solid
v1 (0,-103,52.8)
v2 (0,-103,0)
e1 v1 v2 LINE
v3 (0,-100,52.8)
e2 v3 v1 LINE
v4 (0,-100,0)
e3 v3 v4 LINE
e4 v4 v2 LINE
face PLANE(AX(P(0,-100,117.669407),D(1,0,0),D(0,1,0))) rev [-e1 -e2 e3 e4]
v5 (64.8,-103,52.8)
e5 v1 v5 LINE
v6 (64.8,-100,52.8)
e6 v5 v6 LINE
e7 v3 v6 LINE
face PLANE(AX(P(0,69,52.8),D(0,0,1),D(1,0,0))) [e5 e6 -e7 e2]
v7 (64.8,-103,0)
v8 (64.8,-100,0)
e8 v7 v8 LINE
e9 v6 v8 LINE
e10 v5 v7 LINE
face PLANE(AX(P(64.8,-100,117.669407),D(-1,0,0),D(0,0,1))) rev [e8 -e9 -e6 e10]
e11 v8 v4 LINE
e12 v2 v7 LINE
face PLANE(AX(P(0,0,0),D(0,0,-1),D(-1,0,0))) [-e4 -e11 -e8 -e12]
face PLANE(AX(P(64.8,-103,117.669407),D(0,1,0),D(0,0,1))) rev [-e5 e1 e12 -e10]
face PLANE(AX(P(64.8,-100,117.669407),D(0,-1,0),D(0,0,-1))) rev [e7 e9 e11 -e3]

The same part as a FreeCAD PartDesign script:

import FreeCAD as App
import Part
import Sketcher
Q = App.Units.Quantity


def add_polygon(sketch, points):
    """Adds a closed chain of lines whose ends are joined by coincident constraints."""
    first, n = sketch.GeometryCount, len(points)
    for a, b in zip(points, points[1:] + points[:1]):
        sketch.addGeometry(Part.LineSegment(App.Vector(*a, 0), App.Vector(*b, 0)), False)
    for i in range(n):
        sketch.addConstraint(Sketcher.Constraint("Coincident", first + i, 2, first + (i + 1) % n, 1))

doc = App.newDocument("Part")
body = doc.addObject("PartDesign::Body", "Body")

sketch1 = body.newObject("Sketcher::SketchObject", "Sketch")
sketch1.AttachmentSupport = (doc.getObject("XY_Plane"), [""])
sketch1.MapMode = "FlatFace"
add_polygon(sketch1, [(0, -100), (0, -103), (64.8, -103), (64.8, -100)])
sketch1.addConstraint([
    Sketcher.Constraint("Vertical", 0),
    Sketcher.Constraint("Horizontal", 1),
    Sketcher.Constraint("Vertical", 2),
    Sketcher.Constraint("Horizontal", 3),
    Sketcher.Constraint("PointOnObject", 0, 2, -2),
    Sketcher.Constraint("DistanceY", 0, 2, 0, 1, Q("3 mm")),
    Sketcher.Constraint("DistanceX", 1, 1, 1, 2, Q("64.8 mm")),
    Sketcher.Constraint("DistanceY", 0, 2, -1, 1, Q("103 mm")),
])
pad1 = body.newObject("PartDesign::Pad", "Pad")
pad1.Profile = sketch1
pad1.Length = 52.8

doc.recompute()
